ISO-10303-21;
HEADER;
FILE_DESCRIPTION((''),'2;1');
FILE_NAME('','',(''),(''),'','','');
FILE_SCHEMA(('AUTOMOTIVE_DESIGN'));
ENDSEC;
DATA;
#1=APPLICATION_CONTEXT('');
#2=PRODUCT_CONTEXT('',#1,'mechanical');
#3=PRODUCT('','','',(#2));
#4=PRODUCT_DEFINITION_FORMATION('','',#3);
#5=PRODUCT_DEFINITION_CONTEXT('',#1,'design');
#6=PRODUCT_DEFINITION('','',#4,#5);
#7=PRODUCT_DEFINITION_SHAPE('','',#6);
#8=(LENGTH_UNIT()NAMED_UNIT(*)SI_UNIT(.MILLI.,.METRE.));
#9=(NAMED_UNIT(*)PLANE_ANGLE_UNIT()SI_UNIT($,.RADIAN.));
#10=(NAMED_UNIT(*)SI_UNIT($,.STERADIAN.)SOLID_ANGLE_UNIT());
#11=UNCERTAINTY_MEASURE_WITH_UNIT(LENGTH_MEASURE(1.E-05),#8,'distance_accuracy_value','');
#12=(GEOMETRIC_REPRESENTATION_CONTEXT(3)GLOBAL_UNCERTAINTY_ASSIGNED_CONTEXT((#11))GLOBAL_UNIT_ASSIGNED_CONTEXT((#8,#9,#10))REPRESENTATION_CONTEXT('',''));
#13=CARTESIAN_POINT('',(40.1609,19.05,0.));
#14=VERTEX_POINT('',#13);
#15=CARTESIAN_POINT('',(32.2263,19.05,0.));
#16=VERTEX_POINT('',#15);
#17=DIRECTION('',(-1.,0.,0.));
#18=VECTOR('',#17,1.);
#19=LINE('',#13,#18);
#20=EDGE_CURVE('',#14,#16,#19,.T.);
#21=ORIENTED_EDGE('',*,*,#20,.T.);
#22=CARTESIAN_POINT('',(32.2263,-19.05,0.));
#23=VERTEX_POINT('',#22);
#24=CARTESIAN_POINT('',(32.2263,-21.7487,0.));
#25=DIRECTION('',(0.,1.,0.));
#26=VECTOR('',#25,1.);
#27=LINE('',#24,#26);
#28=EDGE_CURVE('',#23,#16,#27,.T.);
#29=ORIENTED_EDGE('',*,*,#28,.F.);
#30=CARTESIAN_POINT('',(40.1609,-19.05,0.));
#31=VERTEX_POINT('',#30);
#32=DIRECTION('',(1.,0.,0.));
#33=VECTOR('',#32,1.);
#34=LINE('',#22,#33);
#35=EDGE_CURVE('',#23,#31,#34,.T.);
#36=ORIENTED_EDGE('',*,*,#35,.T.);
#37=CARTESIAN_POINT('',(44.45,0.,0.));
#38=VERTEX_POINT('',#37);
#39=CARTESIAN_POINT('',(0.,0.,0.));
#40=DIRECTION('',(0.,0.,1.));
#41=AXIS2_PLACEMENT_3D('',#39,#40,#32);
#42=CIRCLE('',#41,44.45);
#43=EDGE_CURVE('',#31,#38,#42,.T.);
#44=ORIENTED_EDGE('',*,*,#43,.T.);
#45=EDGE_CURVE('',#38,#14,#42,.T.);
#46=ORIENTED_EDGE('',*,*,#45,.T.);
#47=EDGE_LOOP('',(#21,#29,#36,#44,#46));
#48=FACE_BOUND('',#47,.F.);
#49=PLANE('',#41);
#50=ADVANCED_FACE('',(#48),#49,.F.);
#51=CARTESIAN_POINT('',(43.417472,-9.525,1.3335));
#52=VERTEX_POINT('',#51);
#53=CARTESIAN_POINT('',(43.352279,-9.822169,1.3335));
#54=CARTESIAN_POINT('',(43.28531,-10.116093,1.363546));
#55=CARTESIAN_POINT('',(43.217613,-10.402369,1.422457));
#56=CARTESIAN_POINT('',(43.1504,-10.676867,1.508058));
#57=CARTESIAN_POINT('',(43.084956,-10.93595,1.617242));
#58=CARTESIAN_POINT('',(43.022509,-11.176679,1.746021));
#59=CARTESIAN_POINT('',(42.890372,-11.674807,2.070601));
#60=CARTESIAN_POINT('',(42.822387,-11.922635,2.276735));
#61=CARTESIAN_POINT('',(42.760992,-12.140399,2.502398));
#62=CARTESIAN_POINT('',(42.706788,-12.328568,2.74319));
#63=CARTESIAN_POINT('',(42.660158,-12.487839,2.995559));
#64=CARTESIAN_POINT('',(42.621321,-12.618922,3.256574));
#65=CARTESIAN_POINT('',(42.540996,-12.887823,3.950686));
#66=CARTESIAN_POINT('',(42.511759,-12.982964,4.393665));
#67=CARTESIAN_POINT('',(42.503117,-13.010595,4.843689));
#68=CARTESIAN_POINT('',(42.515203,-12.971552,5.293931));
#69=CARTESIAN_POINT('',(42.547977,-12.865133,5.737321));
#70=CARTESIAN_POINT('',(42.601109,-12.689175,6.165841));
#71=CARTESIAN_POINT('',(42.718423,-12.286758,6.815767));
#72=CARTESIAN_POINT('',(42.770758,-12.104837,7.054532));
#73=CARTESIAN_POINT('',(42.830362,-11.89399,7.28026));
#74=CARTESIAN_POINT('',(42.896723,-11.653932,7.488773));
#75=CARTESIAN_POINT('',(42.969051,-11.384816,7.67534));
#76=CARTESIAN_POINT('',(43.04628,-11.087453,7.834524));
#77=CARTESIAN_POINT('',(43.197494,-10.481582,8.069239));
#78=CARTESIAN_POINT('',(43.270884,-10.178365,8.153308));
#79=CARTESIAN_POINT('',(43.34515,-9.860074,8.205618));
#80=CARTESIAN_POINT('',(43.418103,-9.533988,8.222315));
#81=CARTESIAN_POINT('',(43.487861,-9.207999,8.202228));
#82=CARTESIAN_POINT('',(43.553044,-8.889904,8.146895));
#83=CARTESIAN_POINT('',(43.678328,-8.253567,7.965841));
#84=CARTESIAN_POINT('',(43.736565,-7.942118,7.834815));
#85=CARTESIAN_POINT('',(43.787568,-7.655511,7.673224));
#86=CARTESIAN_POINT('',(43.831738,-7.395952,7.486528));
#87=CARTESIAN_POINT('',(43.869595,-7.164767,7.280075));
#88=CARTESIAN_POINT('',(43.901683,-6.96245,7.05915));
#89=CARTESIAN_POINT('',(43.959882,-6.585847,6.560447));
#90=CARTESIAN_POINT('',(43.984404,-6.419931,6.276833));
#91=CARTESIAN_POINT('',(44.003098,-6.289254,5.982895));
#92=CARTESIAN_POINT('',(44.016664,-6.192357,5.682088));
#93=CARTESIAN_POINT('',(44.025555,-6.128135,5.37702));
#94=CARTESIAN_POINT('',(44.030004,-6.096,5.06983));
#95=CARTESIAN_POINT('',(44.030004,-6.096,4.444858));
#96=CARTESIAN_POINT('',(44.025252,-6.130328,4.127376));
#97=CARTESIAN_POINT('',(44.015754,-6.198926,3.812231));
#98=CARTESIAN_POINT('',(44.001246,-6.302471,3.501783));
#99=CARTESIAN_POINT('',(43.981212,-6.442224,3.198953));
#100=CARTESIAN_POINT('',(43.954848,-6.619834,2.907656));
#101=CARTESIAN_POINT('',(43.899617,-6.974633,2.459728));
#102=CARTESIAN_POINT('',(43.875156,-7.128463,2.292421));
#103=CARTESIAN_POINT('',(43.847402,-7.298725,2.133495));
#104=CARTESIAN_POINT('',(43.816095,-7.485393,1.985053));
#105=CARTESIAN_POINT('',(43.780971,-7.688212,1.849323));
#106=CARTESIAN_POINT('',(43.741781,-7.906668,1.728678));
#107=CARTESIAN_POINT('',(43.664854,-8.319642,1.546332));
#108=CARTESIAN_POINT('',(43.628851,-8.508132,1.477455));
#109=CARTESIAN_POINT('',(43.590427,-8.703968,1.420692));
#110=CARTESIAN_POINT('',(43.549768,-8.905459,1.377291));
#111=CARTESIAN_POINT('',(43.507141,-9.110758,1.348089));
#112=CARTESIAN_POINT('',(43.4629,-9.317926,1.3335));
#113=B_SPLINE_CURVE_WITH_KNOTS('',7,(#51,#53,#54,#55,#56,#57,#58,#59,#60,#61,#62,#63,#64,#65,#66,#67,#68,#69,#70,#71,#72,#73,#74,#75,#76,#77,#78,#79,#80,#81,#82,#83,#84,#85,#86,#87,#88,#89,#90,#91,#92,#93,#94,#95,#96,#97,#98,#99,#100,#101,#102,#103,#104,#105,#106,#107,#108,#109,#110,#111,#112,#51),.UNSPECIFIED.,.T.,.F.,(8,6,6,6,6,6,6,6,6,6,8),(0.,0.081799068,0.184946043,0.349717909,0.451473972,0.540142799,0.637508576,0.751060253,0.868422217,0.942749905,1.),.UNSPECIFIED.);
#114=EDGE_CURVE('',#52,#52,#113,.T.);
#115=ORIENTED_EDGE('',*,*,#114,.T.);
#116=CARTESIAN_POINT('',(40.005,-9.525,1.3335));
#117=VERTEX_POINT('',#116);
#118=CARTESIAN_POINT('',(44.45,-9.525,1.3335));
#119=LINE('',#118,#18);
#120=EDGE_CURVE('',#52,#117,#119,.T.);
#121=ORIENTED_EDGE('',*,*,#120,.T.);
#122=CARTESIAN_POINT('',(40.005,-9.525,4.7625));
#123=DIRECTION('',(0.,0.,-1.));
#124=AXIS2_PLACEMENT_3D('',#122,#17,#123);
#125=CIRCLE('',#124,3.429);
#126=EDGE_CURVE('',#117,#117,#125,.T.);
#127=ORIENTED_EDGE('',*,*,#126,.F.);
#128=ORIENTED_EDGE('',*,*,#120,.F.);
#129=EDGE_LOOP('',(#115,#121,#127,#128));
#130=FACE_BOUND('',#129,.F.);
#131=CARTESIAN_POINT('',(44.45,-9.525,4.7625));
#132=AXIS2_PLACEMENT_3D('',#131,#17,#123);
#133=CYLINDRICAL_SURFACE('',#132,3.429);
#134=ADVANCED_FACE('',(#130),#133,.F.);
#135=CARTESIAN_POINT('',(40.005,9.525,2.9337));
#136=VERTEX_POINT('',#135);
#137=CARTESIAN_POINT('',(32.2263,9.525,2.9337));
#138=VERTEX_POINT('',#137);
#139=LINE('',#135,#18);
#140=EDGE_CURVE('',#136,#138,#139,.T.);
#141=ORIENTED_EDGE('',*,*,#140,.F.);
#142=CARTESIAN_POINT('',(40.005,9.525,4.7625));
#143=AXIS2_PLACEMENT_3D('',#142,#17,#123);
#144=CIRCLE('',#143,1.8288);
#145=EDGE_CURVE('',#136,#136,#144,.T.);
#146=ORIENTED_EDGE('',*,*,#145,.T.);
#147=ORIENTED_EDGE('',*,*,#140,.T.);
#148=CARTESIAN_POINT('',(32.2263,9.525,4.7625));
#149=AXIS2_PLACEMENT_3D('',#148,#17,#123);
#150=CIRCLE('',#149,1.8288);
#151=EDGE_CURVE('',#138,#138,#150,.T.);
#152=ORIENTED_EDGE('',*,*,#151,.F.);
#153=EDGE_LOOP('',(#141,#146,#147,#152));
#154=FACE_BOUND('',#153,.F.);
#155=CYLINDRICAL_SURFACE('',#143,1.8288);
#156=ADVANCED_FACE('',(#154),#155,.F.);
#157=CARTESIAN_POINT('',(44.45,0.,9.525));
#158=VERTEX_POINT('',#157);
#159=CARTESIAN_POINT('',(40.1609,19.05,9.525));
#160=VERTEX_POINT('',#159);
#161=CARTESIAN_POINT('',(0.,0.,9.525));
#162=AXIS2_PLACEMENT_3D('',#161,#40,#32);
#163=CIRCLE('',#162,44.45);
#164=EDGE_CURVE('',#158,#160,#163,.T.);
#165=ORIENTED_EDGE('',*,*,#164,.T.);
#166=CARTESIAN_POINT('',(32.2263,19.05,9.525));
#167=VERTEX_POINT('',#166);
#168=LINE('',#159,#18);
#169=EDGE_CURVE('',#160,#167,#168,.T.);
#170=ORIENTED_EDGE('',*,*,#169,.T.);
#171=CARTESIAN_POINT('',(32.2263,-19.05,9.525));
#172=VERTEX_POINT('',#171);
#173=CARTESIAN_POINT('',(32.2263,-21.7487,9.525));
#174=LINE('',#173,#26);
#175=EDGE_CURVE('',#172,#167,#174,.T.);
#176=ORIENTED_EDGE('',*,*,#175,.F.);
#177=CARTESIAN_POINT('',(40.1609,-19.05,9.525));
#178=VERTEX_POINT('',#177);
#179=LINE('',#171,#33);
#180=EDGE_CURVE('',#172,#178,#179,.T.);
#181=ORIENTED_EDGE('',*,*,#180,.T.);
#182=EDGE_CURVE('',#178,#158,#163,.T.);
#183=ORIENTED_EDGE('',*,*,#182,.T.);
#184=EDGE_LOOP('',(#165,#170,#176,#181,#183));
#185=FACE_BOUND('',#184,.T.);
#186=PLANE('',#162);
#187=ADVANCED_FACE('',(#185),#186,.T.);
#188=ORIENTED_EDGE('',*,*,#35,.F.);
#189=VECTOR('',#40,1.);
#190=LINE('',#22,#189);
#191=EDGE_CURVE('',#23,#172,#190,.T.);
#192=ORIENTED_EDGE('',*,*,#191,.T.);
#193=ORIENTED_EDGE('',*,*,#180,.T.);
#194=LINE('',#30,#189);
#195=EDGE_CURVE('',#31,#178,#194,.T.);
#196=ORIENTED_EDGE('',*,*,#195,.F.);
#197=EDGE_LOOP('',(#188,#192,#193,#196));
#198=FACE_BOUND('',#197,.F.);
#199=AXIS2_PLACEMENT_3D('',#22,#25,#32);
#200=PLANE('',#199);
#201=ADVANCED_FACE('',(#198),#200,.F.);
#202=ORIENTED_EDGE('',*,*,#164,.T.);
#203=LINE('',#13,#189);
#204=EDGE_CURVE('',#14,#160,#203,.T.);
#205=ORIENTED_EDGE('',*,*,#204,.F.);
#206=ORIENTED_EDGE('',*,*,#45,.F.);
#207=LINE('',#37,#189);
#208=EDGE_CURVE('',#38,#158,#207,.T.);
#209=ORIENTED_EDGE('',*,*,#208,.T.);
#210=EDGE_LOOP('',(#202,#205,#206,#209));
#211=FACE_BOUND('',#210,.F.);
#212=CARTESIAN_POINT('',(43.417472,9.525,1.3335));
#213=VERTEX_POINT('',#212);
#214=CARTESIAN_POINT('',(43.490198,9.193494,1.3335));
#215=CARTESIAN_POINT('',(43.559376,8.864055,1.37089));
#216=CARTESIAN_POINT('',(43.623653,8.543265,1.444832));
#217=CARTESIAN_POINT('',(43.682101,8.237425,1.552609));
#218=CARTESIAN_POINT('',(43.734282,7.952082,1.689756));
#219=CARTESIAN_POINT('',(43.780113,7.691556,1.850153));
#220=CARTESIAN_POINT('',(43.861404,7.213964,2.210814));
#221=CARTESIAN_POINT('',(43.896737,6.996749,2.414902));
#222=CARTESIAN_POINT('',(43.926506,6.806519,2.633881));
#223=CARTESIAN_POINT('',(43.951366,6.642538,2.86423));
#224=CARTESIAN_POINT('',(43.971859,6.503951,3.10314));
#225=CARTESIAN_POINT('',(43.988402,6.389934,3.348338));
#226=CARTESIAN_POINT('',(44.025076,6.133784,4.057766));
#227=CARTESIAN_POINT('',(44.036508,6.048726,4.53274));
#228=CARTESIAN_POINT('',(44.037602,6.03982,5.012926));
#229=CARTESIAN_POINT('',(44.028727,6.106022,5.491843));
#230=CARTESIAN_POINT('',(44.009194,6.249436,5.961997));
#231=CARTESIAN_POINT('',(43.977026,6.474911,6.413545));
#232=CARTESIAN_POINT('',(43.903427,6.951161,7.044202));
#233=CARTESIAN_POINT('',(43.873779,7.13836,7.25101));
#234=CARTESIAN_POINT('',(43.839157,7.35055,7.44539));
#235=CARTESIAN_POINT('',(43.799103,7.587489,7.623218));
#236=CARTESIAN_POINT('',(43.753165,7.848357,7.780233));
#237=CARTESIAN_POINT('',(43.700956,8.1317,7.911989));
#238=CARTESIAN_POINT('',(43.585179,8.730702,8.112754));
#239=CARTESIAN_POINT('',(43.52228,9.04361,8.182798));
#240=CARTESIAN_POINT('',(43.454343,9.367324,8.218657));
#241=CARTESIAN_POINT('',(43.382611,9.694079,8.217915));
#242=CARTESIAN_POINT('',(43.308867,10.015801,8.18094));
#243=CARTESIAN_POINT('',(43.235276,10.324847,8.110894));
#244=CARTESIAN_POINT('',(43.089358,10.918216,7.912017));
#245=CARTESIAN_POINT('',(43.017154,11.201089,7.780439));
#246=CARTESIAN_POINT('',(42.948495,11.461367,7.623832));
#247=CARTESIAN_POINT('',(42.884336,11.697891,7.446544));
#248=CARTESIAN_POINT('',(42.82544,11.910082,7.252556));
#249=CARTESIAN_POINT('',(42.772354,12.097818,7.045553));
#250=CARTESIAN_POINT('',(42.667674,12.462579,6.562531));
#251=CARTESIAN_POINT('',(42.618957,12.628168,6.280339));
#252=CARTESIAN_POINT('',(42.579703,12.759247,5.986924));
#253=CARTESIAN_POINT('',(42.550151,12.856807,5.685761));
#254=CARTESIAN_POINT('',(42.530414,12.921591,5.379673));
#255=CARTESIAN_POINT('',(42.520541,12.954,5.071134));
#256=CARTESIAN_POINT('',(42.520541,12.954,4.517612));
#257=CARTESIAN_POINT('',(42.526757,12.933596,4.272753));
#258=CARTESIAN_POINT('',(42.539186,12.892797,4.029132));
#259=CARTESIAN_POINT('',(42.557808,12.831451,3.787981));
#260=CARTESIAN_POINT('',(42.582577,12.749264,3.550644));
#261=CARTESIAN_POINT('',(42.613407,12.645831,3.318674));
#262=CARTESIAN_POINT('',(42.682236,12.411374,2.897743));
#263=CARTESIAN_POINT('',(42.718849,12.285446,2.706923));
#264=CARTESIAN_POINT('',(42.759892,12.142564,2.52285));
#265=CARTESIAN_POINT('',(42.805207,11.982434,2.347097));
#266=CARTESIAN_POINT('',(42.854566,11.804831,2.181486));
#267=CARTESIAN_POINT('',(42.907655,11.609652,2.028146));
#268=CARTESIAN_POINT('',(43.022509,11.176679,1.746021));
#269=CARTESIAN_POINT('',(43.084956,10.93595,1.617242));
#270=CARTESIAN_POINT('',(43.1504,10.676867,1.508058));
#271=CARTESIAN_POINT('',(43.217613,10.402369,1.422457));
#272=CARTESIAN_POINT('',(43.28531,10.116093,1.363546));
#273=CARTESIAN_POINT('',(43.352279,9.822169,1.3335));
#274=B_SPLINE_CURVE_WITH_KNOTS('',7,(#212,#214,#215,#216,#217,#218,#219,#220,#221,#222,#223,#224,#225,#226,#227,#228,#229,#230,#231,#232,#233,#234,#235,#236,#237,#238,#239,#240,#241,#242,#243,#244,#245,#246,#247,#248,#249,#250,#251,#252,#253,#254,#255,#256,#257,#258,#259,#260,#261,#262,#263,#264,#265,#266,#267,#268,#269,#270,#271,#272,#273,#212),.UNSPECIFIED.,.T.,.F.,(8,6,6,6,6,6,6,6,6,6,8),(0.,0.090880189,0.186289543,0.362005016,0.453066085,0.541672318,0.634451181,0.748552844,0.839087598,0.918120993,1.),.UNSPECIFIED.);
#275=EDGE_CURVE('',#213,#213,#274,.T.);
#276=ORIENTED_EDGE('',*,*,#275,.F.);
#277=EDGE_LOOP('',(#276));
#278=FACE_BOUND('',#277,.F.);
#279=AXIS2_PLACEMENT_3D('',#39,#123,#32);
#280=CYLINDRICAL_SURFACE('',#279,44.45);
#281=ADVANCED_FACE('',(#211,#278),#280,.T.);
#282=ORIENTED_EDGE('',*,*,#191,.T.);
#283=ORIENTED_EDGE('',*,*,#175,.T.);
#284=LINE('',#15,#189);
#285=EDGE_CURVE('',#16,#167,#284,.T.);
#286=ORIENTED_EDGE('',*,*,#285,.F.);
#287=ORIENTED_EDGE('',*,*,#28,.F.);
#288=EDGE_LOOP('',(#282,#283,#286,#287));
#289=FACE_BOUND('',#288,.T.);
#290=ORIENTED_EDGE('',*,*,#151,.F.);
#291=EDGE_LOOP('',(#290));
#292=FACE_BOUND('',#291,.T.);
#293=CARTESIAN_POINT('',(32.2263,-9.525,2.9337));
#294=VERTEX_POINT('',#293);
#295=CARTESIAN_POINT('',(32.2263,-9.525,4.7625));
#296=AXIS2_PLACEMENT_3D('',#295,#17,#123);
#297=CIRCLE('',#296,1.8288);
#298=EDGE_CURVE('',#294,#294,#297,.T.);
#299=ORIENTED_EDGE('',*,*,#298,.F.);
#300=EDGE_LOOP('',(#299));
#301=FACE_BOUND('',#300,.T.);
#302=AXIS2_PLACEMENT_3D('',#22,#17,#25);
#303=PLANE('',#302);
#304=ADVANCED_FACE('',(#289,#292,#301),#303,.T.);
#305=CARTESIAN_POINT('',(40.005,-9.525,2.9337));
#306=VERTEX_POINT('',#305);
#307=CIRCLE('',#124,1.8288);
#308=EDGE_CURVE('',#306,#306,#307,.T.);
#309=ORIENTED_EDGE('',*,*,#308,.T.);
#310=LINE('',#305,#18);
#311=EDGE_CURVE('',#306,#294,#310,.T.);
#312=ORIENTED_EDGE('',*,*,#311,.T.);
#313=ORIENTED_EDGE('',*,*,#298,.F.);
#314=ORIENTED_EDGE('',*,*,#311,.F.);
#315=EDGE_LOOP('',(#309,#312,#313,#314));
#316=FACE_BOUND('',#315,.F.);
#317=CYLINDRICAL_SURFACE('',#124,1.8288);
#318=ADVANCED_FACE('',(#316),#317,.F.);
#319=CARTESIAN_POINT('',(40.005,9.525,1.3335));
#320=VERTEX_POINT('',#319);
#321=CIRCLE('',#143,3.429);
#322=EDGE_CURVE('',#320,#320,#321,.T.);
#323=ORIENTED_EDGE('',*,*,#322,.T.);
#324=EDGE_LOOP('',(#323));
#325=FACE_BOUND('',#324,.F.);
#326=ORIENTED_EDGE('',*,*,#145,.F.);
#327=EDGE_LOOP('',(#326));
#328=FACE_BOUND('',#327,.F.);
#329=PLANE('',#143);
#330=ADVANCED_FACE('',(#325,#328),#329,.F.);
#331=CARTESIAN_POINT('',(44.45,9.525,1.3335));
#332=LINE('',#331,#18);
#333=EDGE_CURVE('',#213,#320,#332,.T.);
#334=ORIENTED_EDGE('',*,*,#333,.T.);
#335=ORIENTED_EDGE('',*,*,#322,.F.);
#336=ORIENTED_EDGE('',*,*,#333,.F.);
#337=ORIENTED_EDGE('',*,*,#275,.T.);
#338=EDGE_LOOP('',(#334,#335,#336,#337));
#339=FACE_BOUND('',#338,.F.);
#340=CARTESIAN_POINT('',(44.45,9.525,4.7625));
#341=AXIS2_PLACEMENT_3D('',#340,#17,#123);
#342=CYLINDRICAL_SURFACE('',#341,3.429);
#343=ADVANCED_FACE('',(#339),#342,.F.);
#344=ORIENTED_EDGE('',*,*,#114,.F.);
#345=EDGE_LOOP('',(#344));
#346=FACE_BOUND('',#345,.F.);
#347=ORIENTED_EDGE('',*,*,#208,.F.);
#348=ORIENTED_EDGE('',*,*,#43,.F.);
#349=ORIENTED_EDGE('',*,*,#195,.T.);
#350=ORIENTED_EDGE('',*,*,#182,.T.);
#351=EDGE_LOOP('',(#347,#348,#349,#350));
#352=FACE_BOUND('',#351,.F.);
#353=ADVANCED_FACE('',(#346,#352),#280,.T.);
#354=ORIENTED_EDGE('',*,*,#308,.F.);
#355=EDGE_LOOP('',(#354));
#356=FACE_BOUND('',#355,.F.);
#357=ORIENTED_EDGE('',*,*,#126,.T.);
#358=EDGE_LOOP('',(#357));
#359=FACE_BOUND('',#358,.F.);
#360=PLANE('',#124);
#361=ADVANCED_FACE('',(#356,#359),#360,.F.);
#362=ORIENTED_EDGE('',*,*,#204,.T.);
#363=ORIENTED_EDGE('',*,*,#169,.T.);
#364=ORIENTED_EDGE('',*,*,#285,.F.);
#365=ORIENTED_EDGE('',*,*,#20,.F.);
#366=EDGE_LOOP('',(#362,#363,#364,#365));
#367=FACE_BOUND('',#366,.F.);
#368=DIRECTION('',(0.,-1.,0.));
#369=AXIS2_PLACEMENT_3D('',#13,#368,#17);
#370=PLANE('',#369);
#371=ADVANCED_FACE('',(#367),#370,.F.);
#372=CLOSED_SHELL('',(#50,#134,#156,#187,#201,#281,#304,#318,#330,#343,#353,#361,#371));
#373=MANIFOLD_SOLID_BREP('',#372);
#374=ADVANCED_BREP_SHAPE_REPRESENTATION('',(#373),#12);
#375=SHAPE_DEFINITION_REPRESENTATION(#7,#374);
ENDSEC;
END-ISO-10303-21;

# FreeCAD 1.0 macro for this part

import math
import FreeCAD as App
import Part
import Sketcher
Q = App.Units.Quantity

doc = App.newDocument("Part")
body = doc.addObject("PartDesign::Body", "Body")

# Sketch on XY plane
sketch1 = body.newObject("Sketcher::SketchObject", "Sketch")
sketch1.AttachmentSupport = (doc.getObject("XY_Plane"), [""])
sketch1.MapMode = "FlatFace"
sketch1.addGeometry([
    Part.ArcOfCircle(Part.Circle(App.Vector(0, 0, 0), App.Vector(0, 0, 1), 44.45), math.radians(-25.376948), math.radians(25.376948)),
    Part.LineSegment(App.Vector(40.1609, 19.05, 0), App.Vector(32.2263, 19.05, 0)),
    Part.LineSegment(App.Vector(32.2263, 19.05, 0), App.Vector(32.2263, -19.05, 0)),
    Part.LineSegment(App.Vector(32.2263, -19.05, 0), App.Vector(40.1609, -19.05, 0)),
], False)
sketch1.addConstraint([
    Sketcher.Constraint("Coincident", 0, 2, 1, 1),
    Sketcher.Constraint("Coincident", 1, 2, 2, 1),
    Sketcher.Constraint("Coincident", 2, 2, 3, 1),
    Sketcher.Constraint("Coincident", 3, 2, 0, 1),
    Sketcher.Constraint("Horizontal", 1),
    Sketcher.Constraint("Vertical", 2),
    Sketcher.Constraint("Horizontal", 3),
    Sketcher.Constraint("Coincident", 0, 3, -1, 1),
    Sketcher.Constraint("Vertical", 0, 2, 3, 2),
    Sketcher.Constraint("Radius", 0, Q("1.75 in")),
    Sketcher.Constraint("DistanceY", -1, 1, 0, 2, Q("0.75 in")),
    Sketcher.Constraint("DistanceX", 1, 2, 1, 1, Q("7.9346 mm")),
])
pad1 = body.newObject("PartDesign::Pad", "Pad")
pad1.Profile = sketch1
pad1.Length = Q("0.375 in")

# Sketch on YZ plane
sketch2 = body.newObject("Sketcher::SketchObject", "Sketch001")
sketch2.AttachmentSupport = (doc.getObject("YZ_Plane"), [""])
sketch2.MapMode = "FlatFace"
sketch2.AttachmentOffset = App.Placement(App.Vector(0, 0, 1.75 * 25.4), App.Rotation())
sketch2.addGeometry([
    Part.Circle(App.Vector(-9.525, 4.7625, 0), App.Vector(0, 0, 1), 1.8288),
    Part.Circle(App.Vector(9.525, 4.7625, 0), App.Vector(0, 0, 1), 1.8288),
], False)
sketch2.addConstraint([
    Sketcher.Constraint("Equal", 0, 1),
    Sketcher.Constraint("Symmetric", 0, 3, 1, 3, -2),
    Sketcher.Constraint("Diameter", 0, Q("0.144 in")),
    Sketcher.Constraint("DistanceX", 0, 3, 1, 3, Q("0.75 in")),
    Sketcher.Constraint("DistanceY", -1, 1, 0, 3, Q("0.1875 in")),
])
doc.recompute()
hole = body.newObject("PartDesign::Hole", "Hole")
hole.Profile = sketch2
hole.ThreadType = "None"
hole.Diameter = Q("0.144 in")
hole.DepthType = "ThroughAll"
hole.HoleCutType = "Counterbore"
hole.HoleCutDiameter = Q("0.27 in")
hole.HoleCutDepth = Q("0.175 in")

doc.recompute()
